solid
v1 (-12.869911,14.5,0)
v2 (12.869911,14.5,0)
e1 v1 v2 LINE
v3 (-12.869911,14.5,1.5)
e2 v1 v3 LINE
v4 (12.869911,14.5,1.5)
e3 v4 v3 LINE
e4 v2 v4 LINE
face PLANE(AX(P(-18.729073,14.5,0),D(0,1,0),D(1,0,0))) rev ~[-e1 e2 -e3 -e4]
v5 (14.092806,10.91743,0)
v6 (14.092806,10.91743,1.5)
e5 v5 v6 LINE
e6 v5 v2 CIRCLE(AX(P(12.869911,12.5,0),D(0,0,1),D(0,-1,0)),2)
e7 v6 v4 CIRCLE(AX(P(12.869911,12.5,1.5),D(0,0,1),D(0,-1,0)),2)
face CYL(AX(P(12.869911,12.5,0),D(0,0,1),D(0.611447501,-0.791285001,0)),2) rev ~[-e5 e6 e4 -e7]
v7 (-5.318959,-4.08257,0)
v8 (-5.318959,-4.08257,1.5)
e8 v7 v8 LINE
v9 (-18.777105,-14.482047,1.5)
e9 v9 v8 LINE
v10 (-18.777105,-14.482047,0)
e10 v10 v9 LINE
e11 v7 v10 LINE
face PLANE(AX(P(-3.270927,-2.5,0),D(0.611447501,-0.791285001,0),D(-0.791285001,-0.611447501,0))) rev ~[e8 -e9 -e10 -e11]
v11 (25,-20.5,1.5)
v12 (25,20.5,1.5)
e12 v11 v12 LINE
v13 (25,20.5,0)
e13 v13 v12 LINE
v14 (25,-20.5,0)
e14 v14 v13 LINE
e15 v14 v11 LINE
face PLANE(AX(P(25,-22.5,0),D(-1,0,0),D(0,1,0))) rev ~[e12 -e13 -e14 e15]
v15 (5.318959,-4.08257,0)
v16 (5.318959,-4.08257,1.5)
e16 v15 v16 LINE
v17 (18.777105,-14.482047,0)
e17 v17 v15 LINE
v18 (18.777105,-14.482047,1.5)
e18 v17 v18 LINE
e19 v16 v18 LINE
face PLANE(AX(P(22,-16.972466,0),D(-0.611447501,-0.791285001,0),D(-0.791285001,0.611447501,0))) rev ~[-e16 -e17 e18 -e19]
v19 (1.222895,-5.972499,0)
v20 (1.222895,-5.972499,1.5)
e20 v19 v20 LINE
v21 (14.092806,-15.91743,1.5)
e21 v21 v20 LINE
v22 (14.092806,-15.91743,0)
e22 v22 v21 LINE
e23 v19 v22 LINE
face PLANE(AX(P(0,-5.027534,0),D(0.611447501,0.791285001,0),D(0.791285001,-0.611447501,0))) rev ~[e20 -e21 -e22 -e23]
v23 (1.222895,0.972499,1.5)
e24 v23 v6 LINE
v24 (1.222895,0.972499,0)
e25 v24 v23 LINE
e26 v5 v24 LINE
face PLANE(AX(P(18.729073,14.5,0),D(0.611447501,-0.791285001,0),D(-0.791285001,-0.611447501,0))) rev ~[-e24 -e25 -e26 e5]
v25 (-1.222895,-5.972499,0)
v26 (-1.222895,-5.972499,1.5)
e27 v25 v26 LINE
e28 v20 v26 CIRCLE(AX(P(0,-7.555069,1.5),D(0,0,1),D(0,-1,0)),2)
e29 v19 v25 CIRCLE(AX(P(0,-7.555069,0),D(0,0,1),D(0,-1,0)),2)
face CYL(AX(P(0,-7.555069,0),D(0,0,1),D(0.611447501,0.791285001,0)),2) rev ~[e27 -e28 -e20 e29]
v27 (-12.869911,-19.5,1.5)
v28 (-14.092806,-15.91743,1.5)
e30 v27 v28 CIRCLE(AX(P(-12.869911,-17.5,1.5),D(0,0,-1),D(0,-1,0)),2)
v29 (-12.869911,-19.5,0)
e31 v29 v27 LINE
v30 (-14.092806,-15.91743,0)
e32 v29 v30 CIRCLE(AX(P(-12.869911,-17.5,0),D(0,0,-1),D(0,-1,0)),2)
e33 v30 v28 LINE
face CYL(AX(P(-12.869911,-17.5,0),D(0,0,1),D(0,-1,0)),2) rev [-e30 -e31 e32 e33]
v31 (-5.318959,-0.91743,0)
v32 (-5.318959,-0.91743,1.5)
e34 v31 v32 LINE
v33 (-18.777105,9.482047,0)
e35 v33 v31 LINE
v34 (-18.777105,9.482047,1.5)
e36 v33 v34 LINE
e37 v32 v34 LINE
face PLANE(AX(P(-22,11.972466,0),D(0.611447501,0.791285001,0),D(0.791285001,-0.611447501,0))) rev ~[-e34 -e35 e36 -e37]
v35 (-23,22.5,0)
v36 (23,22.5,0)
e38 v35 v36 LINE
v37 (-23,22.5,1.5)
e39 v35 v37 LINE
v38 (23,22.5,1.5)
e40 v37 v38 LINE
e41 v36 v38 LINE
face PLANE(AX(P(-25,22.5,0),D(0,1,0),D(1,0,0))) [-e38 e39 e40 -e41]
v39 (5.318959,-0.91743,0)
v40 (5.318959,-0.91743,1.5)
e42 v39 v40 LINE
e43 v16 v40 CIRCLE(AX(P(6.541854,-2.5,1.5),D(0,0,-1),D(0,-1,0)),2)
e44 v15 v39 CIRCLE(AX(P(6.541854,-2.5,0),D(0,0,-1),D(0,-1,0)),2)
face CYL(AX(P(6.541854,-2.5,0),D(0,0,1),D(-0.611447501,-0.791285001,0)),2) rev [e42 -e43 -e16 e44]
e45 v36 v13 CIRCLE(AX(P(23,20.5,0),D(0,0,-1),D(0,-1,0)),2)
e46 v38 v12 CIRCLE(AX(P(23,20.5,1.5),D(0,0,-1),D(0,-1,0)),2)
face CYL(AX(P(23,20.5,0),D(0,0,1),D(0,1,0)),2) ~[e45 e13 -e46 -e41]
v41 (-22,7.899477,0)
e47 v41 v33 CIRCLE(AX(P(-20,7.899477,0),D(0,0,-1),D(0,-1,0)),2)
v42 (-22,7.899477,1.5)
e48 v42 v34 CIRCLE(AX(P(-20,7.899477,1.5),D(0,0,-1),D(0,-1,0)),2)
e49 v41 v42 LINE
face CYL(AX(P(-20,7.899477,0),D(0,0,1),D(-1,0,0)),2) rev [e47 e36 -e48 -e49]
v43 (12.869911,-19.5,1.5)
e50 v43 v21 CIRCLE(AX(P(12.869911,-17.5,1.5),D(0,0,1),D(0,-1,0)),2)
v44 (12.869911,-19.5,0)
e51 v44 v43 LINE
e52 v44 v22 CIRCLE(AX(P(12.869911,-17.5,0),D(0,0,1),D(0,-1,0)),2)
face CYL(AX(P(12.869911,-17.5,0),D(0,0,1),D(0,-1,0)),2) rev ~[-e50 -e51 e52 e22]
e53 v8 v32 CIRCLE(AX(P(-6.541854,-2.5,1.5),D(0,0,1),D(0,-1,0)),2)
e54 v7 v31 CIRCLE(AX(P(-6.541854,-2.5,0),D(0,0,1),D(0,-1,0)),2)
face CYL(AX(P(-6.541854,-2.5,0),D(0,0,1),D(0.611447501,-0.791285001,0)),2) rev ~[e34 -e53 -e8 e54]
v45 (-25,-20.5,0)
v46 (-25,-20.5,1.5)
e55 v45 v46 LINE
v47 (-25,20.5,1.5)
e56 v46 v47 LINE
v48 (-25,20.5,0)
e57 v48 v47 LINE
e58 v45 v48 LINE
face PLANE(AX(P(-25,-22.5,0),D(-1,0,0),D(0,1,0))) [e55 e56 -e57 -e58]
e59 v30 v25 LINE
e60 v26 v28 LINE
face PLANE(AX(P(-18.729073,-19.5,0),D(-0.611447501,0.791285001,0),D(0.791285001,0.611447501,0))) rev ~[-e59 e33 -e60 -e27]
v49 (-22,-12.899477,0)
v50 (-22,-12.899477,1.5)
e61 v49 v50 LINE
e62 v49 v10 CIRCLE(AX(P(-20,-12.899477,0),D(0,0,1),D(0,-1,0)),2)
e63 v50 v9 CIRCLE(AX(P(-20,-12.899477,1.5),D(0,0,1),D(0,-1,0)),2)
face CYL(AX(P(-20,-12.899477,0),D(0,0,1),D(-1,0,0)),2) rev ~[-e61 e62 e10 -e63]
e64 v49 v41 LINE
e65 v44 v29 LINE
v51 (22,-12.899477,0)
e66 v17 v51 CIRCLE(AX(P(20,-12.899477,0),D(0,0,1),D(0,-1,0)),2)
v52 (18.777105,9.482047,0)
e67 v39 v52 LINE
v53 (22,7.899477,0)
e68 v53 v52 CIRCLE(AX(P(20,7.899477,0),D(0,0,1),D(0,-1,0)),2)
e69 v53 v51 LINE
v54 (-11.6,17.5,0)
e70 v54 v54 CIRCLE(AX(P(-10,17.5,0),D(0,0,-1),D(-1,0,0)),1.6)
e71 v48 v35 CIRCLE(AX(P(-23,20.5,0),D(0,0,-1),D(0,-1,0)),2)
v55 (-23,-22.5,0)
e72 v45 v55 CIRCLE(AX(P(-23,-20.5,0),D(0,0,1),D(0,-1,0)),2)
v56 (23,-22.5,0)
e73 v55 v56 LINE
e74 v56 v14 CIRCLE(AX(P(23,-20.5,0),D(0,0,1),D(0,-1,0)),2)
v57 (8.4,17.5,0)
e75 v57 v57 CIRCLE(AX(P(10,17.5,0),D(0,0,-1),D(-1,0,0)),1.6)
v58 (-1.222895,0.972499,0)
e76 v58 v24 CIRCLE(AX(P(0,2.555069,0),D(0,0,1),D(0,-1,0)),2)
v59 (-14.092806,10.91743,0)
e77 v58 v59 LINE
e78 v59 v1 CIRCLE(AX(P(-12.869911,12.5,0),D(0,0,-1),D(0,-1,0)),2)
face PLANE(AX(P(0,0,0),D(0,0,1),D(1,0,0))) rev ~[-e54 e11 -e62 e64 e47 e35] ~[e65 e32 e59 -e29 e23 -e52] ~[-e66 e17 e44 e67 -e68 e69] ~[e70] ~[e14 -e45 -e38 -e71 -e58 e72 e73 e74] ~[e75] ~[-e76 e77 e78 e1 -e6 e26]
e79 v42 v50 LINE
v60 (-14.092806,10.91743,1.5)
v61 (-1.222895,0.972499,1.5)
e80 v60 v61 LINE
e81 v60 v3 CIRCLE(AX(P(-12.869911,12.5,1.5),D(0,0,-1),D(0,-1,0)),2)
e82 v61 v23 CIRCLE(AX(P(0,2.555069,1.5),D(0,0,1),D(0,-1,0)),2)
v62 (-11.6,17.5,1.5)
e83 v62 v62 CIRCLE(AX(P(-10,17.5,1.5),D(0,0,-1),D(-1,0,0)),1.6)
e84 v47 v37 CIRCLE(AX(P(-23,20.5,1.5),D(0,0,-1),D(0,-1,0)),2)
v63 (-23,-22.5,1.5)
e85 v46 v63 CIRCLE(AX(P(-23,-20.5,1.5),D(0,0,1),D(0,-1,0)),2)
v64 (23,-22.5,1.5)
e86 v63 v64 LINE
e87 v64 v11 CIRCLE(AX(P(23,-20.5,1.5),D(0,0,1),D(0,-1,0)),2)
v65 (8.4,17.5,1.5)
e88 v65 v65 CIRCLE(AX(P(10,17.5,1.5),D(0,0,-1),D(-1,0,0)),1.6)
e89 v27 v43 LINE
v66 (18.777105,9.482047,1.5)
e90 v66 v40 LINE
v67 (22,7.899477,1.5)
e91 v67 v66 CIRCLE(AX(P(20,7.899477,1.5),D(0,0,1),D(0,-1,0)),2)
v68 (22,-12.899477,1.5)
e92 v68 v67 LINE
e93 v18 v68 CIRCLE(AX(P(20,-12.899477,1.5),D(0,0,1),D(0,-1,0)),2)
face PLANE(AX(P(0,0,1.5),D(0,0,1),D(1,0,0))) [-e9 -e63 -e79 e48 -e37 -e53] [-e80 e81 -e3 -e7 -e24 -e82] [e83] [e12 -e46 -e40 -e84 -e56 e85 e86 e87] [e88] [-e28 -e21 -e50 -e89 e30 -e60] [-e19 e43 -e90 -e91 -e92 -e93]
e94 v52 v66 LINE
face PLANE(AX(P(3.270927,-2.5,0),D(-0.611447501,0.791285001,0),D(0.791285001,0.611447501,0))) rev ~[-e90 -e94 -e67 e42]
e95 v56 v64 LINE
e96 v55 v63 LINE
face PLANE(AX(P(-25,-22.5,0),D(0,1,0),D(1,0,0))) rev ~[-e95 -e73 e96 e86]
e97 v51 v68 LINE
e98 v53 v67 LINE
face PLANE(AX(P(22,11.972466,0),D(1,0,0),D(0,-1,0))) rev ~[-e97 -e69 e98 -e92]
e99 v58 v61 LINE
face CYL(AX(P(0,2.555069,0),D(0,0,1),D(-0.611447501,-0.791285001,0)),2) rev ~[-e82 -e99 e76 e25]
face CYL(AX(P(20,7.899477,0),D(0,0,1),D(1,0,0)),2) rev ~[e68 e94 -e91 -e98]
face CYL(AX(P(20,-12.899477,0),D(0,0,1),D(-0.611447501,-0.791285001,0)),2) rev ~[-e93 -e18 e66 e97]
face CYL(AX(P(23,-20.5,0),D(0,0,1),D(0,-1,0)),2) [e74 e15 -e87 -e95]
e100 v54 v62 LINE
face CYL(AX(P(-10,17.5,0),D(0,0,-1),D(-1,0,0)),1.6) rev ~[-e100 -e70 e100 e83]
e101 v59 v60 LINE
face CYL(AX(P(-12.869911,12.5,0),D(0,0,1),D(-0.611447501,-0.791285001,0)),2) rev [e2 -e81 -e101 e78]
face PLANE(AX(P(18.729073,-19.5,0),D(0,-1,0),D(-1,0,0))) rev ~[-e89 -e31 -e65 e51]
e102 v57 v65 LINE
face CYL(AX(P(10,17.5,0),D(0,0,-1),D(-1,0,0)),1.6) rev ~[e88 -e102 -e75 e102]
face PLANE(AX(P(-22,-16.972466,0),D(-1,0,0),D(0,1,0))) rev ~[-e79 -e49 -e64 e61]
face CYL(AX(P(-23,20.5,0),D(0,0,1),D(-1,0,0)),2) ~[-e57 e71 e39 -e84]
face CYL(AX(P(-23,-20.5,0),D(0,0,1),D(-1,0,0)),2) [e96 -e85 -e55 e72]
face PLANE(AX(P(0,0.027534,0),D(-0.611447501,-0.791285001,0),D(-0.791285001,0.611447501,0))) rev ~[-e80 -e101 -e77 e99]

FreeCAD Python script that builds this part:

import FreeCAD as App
import Part
import Sketcher
from FreeCAD import Vector


def edges_at(feature, points):
    """Names of the edges that pass closest to the given points."""
    edges = feature.Shape.Edges
    near = lambda p: min(range(len(edges)), key=lambda i: edges[i].distToShape(Part.Vertex(*p))[0])
    return sorted({f"Edge{near(p) + 1}" for p in points})


def add_polygon(sketch, points):
    """Adds a closed chain of lines whose ends are joined by coincident constraints."""
    first, n = sketch.GeometryCount, len(points)
    for a, b in zip(points, points[1:] + points[:1]):
        sketch.addGeometry(Part.LineSegment(App.Vector(*a, 0), App.Vector(*b, 0)), False)
    for i in range(n):
        sketch.addConstraint(Sketcher.Constraint("Coincident", first + i, 2, first + (i + 1) % n, 1))

doc = App.newDocument("Part")
body = doc.addObject("PartDesign::Body", "Body")

sketch1 = doc.addObject("Sketcher::SketchObject", "Sketch")
body.addObject(sketch1)
sketch1.AttachmentSupport = (doc.XY_Plane, [""])
sketch1.MapMode = "FlatFace"
add_polygon(sketch1, [(-25, 22.5), (-25, -22.5), (25, -22.5), (25, 22.5)])
sketch1.addConstraint([
    Sketcher.Constraint("Vertical", 0),
    Sketcher.Constraint("Horizontal", 1),
    Sketcher.Constraint("Vertical", 2),
    Sketcher.Constraint("Horizontal", 3),
    Sketcher.Constraint("Symmetric", 0, 2, 2, 2, -1, 1),
    Sketcher.Constraint("DistanceX", 1, 1, 1, 2, 50.0),
    Sketcher.Constraint("DistanceY", 0, 2, 0, 1, 45.0),
])
pad1 = doc.addObject("PartDesign::Pad", "Pad")
body.addObject(pad1)
pad1.Profile = sketch1
pad1.Length = 1.5

sketch2 = doc.addObject("Sketcher::SketchObject", "Sketch001")
body.addObject(sketch2)
sketch2.AttachmentSupport = (doc.XY_Plane, [""])
sketch2.MapMode = "FlatFace"
add_polygon(sketch2, [(-18.729073, 14.5), (18.729073, 14.5), (0, 0.027534)])
add_polygon(sketch2, [(3.270927, -2.5), (22, 11.972466), (22, -16.972466)])
add_polygon(sketch2, [(-18.729073, -19.5), (0, -5.027534), (18.729073, -19.5)])
add_polygon(sketch2, [(-22, 11.972466), (-3.270927, -2.5), (-22, -16.972466)])
sketch2.addGeometry(Part.Circle(Vector(10, 17.5, 0), Vector(0, 0, 1), 1.6), False)
sketch2.addGeometry(Part.Circle(Vector(-10, 17.5, 0), Vector(0, 0, 1), 1.6), False)
sketch2.addConstraint([
    Sketcher.Constraint("Horizontal", 0),
    Sketcher.Constraint("Vertical", 4),
    Sketcher.Constraint("Horizontal", 8),
    Sketcher.Constraint("Vertical", 11),
    Sketcher.Constraint("Equal", 12, 13),
    Sketcher.Constraint("Symmetric", 12, 3, 13, 3, -2),
    Sketcher.Constraint("Symmetric", 5, 2, 9, 2, -2),
    Sketcher.Constraint("Symmetric", 4, 2, 10, 2, -2),
    Sketcher.Constraint("PointOnObject", 1, 2, -2),
    Sketcher.Constraint("PointOnObject", 6, 2, -2),
    Sketcher.Constraint("Parallel", 1, 3),
    Sketcher.Constraint("Parallel", 2, 5),
    Sketcher.Constraint("Parallel", 3, 6),
    Sketcher.Constraint("Parallel", 5, 7),
    Sketcher.Constraint("Parallel", 7, 9),
    Sketcher.Constraint("Parallel", 6, 10),
    Sketcher.Constraint("Vertical", 0, 2, 7, 2),
    Sketcher.Constraint("Equal", 2, 3),
    Sketcher.Constraint("Diameter", 12, 3.2),
    Sketcher.Constraint("DistanceX", -1, 1, 12, 3, 10.0),
    Sketcher.Constraint("DistanceX", -1, 1, 3, 2, 22.0),
    Sketcher.Constraint("DistanceY", 0, 2, 12, 3, 3.0),
    Sketcher.Constraint("DistanceY", 4, 2, 1, 2, 17.0),
    Sketcher.Constraint("DistanceY", 7, 2, 5, 2, 17.0),
    Sketcher.Constraint("DistanceY", -1, 1, 12, 3, 17.5),
    Sketcher.Constraint("DistanceY", 4, 2, 4, 1, 28.944931),
    Sketcher.Constraint("DistanceX", 0, 1, 0, 2, 37.458146),
])
pocket1 = doc.addObject("PartDesign::Pocket", "Pocket")
body.addObject(pocket1)
pocket1.Profile = sketch2
pocket1.Length = 2
pocket1.Reversed = True
doc.recompute()

fillet = doc.addObject("PartDesign::Fillet", "Fillet")
body.addObject(fillet)
fillet.Base = (pocket1, edges_at(pocket1, [
    (-3.271, -2.5, 0.75),
    (-22, 11.972, 0.75),
    (-22, -16.972, 0.75),
    (22, -16.972, 0.75),
    (22, 11.972, 0.75),
    (3.271, -2.5, 0.75),
    (18.729, -19.5, 0.75),
    (0, -5.028, 0.75),
    (-18.729, -19.5, 0.75),
    (0, 0.028, 0.75),
    (18.729, 14.5, 0.75),
    (-18.729, 14.5, 0.75),
    (25, -22.5, 0.75),
    (-25, -22.5, 0.75),
    (-25, 22.5, 0.75),
    (25, 22.5, 0.75),
]))
fillet.Radius = 2

doc.recompute()
